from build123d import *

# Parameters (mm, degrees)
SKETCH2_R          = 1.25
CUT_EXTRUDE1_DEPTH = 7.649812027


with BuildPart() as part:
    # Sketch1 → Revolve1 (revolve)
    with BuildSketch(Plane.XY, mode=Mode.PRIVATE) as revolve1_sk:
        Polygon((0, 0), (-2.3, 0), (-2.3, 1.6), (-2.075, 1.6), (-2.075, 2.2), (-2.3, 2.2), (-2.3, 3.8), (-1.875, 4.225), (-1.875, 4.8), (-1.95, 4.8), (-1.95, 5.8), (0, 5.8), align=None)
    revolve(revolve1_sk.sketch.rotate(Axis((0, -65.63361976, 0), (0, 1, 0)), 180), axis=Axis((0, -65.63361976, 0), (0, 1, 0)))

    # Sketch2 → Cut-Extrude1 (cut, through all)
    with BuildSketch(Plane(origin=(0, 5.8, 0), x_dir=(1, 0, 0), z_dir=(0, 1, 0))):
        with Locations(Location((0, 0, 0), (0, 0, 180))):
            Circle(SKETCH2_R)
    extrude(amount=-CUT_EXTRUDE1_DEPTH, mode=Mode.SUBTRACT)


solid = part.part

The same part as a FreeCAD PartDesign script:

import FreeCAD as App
import Part
import Sketcher
from FreeCAD import Vector
Q = App.Units.Quantity


def add_polygon(sketch, points):
    """Adds a closed chain of lines whose ends are joined by coincident constraints."""
    first, n = sketch.GeometryCount, len(points)
    for a, b in zip(points, points[1:] + points[:1]):
        sketch.addGeometry(Part.LineSegment(App.Vector(*a, 0), App.Vector(*b, 0)), False)
    for i in range(n):
        sketch.addConstraint(Sketcher.Constraint("Coincident", first + i, 2, first + (i + 1) % n, 1))

doc = App.newDocument("Part")
params = doc.addObject("Spreadsheet::Sheet", "Params")
for row, (alias, value) in enumerate([
    ("sketch1_height", "1 mm"),
    ("sketch1_width", "2.3 mm"),
    ("sketch1_height2", "5.8 mm"),
    ("sketch1_height3", "1.6 mm"),
    ("sketch1_height4", "0.6 mm"),
    ("revolution_angle", "360 deg"),
    ("sketch2_diameter", "2.5 mm"),
], start=1):
    params.set(f"A{row}", alias)
    params.set(f"B{row}", "=" + value)
    params.setAlias(f"B{row}", alias)

body = doc.addObject("PartDesign::Body", "Body")

# Sketch on XY plane
sketch1 = body.newObject("Sketcher::SketchObject", "Sketch")
sketch1.AttachmentSupport = (doc.getObject("XY_Plane"), [""])
sketch1.MapMode = "FlatFace"
add_polygon(sketch1, [(-2.3, 0), (0, 0), (0, 5.8), (-1.95, 5.8), (-1.95, 4.8), (-1.88, 4.8), (-1.88, 4.22), (-2.3, 3.8), (-2.3, 2.2), (-2.08, 2.2), (-2.08, 1.6), (-2.3, 1.6)])  # lines 0-11
sketch1.addConstraint(Sketcher.Constraint("Horizontal", 0))
sketch1.addConstraint(Sketcher.Constraint("Vertical", 1))
sketch1.addConstraint(Sketcher.Constraint("Horizontal", 2))
sketch1.addConstraint(Sketcher.Constraint("Vertical", 3))
sketch1.addConstraint(Sketcher.Constraint("Horizontal", 4))
sketch1.addConstraint(Sketcher.Constraint("Vertical", 5))
sketch1.addConstraint(Sketcher.Constraint("Vertical", 7))
sketch1.addConstraint(Sketcher.Constraint("Horizontal", 8))
sketch1.addConstraint(Sketcher.Constraint("Vertical", 9))
sketch1.addConstraint(Sketcher.Constraint("Horizontal", 10))
sketch1.addConstraint(Sketcher.Constraint("Vertical", 11))
sketch1.addConstraint(Sketcher.Constraint("Coincident", 0, 2, -1, 1))
sketch1.addConstraint(Sketcher.Constraint("Vertical", 7, 2, 10, 2))
sketch1.addConstraint(Sketcher.Constraint("Equal", 7, 11))
sketch1.addConstraint(Sketcher.Constraint("DistanceY", 3, 2, 3, 1, 1.0))
sketch1.addConstraint(Sketcher.Constraint("Angle", 6, Q("-135 deg")))
sketch1.addConstraint(Sketcher.Constraint("DistanceX", 0, 1, 0, 2, 2.3))
sketch1.addConstraint(Sketcher.Constraint("DistanceY", 1, 1, 1, 2, 5.8))
sketch1.addConstraint(Sketcher.Constraint("DistanceY", 7, 2, 7, 1, 1.6))
sketch1.addConstraint(Sketcher.Constraint("DistanceY", 9, 2, 9, 1, 0.6))
sketch1.addConstraint(Sketcher.Constraint("DistanceX", 2, 2, 2, 1, 1.95))
sketch1.addConstraint(Sketcher.Constraint("DistanceX", 8, 2, 5, 2, 0.2))
sketch1.addConstraint(Sketcher.Constraint("DistanceX", 4, 1, 4, 2, 0.075))
sketch1.setExpression("Constraints[26]", "Params.sketch1_height")
sketch1.setExpression("Constraints[28]", "Params.sketch1_width")
sketch1.setExpression("Constraints[29]", "Params.sketch1_height2")
sketch1.setExpression("Constraints[30]", "Params.sketch1_height3")
sketch1.setExpression("Constraints[31]", "Params.sketch1_height4")
revolution = body.newObject("PartDesign::Revolution", "Revolution")
revolution.Profile = sketch1
revolution.ReferenceAxis = (sketch1, ["V_Axis"])
revolution.setExpression("Angle", "Params.revolution_angle")

# Sketch on XZ plane
sketch2 = body.newObject("Sketcher::SketchObject", "Sketch001")
sketch2.AttachmentSupport = (doc.getObject("XZ_Plane"), [""])
sketch2.MapMode = "FlatFace"
sketch2.AttachmentOffset = App.Placement(Vector(0, 0, -5.8), App.Rotation())
sketch2.addGeometry(Part.Circle(Vector(0, 0, 0), Vector(0, 0, 1), 1.2), False)
sketch2.addConstraint(Sketcher.Constraint("Coincident", 0, 3, -1, 1))
sketch2.addConstraint(Sketcher.Constraint("Diameter", 0, 2.5))
sketch2.setExpression("Constraints[1]", "Params.sketch2_diameter")
pocket1 = body.newObject("PartDesign::Pocket", "Pocket")
pocket1.Profile = sketch2
pocket1.Type = "ThroughAll"
pocket1.Reversed = True

doc.recompute()
